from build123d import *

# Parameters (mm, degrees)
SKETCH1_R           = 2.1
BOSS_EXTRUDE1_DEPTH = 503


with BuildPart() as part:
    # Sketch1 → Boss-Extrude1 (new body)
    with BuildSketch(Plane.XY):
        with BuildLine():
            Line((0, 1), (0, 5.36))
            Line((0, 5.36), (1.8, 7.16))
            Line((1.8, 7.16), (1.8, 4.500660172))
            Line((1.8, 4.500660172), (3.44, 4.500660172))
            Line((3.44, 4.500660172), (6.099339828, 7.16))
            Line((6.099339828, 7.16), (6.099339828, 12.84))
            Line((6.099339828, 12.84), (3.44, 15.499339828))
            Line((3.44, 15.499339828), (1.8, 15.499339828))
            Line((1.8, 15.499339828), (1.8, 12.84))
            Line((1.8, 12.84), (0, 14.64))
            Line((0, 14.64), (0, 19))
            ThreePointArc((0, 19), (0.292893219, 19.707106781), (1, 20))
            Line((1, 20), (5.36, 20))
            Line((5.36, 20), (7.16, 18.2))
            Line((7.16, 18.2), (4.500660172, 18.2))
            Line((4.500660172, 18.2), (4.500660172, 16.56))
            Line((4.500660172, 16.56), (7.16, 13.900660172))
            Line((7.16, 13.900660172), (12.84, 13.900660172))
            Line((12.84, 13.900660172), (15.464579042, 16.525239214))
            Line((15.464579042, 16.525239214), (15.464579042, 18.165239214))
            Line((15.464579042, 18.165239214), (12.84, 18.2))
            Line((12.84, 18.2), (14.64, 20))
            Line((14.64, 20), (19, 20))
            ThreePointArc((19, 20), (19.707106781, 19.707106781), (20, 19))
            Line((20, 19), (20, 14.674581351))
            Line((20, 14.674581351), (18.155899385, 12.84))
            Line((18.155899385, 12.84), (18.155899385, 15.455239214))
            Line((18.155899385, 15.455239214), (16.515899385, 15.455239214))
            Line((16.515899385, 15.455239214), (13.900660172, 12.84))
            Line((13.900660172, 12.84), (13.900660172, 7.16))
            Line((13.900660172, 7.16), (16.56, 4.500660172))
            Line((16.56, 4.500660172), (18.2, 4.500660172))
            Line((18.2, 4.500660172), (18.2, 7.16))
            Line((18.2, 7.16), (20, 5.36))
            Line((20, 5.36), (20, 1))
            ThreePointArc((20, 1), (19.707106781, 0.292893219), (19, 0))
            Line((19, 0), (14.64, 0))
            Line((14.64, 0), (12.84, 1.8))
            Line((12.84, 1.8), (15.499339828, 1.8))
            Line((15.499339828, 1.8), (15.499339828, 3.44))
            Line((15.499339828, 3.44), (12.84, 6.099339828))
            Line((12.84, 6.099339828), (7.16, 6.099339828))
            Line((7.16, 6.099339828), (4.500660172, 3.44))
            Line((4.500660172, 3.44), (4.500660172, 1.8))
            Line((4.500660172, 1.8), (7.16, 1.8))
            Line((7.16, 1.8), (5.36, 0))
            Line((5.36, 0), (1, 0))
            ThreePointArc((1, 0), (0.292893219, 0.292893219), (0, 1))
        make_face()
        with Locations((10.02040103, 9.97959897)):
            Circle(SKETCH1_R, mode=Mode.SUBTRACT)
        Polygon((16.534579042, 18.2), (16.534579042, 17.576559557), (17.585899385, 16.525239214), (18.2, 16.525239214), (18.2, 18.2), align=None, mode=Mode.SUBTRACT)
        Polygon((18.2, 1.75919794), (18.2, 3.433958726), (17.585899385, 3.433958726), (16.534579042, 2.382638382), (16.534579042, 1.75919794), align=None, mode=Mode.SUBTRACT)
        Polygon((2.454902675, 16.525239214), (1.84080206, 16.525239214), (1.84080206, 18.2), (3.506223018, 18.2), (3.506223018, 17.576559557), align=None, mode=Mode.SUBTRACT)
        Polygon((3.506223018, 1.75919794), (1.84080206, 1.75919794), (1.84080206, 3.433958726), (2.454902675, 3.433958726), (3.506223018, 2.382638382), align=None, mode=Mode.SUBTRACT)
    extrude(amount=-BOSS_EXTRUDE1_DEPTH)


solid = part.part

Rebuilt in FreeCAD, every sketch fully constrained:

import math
import FreeCAD as App
import Part
import Sketcher
Q = App.Units.Quantity


def add_polygon(sketch, points):
    """Adds a closed chain of lines whose ends are joined by coincident constraints."""
    first, n = sketch.GeometryCount, len(points)
    for a, b in zip(points, points[1:] + points[:1]):
        sketch.addGeometry(Part.LineSegment(App.Vector(*a, 0), App.Vector(*b, 0)), False)
    for i in range(n):
        sketch.addConstraint(Sketcher.Constraint("Coincident", first + i, 2, first + (i + 1) % n, 1))

doc = App.newDocument("Part")
body = doc.addObject("PartDesign::Body", "Body")

sketch1 = doc.addObject("Sketcher::SketchObject", "Sketch")
body.addObject(sketch1)
sketch1.AttachmentSupport = (doc.XY_Plane, [""])
sketch1.MapMode = "FlatFace"
sketch1.addGeometry(Part.LineSegment(App.Vector(0, 5.4, 0), App.Vector(0, 1, 0)), False)
sketch1.addGeometry(Part.ArcOfCircle(Part.Circle(App.Vector(1, 1, 0), App.Vector(0, 0, 1), 1), math.radians(-180), math.radians(-90)), False)
sketch1.addGeometry(Part.LineSegment(App.Vector(1, 0, 0), App.Vector(5.4, 0, 0)), False)
sketch1.addGeometry(Part.LineSegment(App.Vector(5.4, 0, 0), App.Vector(7.2, 1.8, 0)), False)
sketch1.addGeometry(Part.LineSegment(App.Vector(7.2, 1.8, 0), App.Vector(4.5, 1.8, 0)), False)
sketch1.addGeometry(Part.LineSegment(App.Vector(4.5, 1.8, 0), App.Vector(4.5, 3.4, 0)), False)
sketch1.addGeometry(Part.LineSegment(App.Vector(4.5, 3.4, 0), App.Vector(7.2, 6.1, 0)), False)
sketch1.addGeometry(Part.LineSegment(App.Vector(7.2, 6.1, 0), App.Vector(12.8, 6.1, 0)), False)
sketch1.addGeometry(Part.LineSegment(App.Vector(12.8, 6.1, 0), App.Vector(15.5, 3.4, 0)), False)
sketch1.addGeometry(Part.LineSegment(App.Vector(15.5, 3.4, 0), App.Vector(15.5, 1.8, 0)), False)
sketch1.addGeometry(Part.LineSegment(App.Vector(15.5, 1.8, 0), App.Vector(12.8, 1.8, 0)), False)
sketch1.addGeometry(Part.LineSegment(App.Vector(12.8, 1.8, 0), App.Vector(14.6, 0, 0)), False)
sketch1.addGeometry(Part.LineSegment(App.Vector(14.6, 0, 0), App.Vector(19, 0, 0)), False)
sketch1.addGeometry(Part.ArcOfCircle(Part.Circle(App.Vector(19, 1, 0), App.Vector(0, 0, 1), 1), math.radians(-90), math.radians(0)), False)
sketch1.addGeometry(Part.LineSegment(App.Vector(20, 1, 0), App.Vector(20, 5.4, 0)), False)
sketch1.addGeometry(Part.LineSegment(App.Vector(20, 5.4, 0), App.Vector(18.2, 7.2, 0)), False)
sketch1.addGeometry(Part.LineSegment(App.Vector(18.2, 7.2, 0), App.Vector(18.2, 4.5, 0)), False)
sketch1.addGeometry(Part.LineSegment(App.Vector(18.2, 4.5, 0), App.Vector(16.6, 4.5, 0)), False)
sketch1.addGeometry(Part.LineSegment(App.Vector(16.6, 4.5, 0), App.Vector(13.9, 7.2, 0)), False)
sketch1.addGeometry(Part.LineSegment(App.Vector(13.9, 7.2, 0), App.Vector(13.9, 12.8, 0)), False)
sketch1.addGeometry(Part.LineSegment(App.Vector(13.9, 12.8, 0), App.Vector(16.5, 15.5, 0)), False)
sketch1.addGeometry(Part.LineSegment(App.Vector(16.5, 15.5, 0), App.Vector(18.2, 15.5, 0)), False)
sketch1.addGeometry(Part.LineSegment(App.Vector(18.2, 15.5, 0), App.Vector(18.2, 12.8, 0)), False)
sketch1.addGeometry(Part.LineSegment(App.Vector(18.2, 12.8, 0), App.Vector(20, 14.7, 0)), False)
sketch1.addGeometry(Part.LineSegment(App.Vector(20, 14.7, 0), App.Vector(20, 19, 0)), False)
sketch1.addGeometry(Part.ArcOfCircle(Part.Circle(App.Vector(19, 19, 0), App.Vector(0, 0, 1), 1), math.radians(0), math.radians(90)), False)
sketch1.addGeometry(Part.LineSegment(App.Vector(19, 20, 0), App.Vector(14.6, 20, 0)), False)
sketch1.addGeometry(Part.LineSegment(App.Vector(14.6, 20, 0), App.Vector(12.8, 18.2, 0)), False)
sketch1.addGeometry(Part.LineSegment(App.Vector(12.8, 18.2, 0), App.Vector(15.5, 18.2, 0)), False)
sketch1.addGeometry(Part.LineSegment(App.Vector(15.5, 18.2, 0), App.Vector(15.5, 16.5, 0)), False)
sketch1.addGeometry(Part.LineSegment(App.Vector(15.5, 16.5, 0), App.Vector(12.8, 13.9, 0)), False)
sketch1.addGeometry(Part.LineSegment(App.Vector(12.8, 13.9, 0), App.Vector(7.2, 13.9, 0)), False)
sketch1.addGeometry(Part.LineSegment(App.Vector(7.2, 13.9, 0), App.Vector(4.5, 16.6, 0)), False)
sketch1.addGeometry(Part.LineSegment(App.Vector(4.5, 16.6, 0), App.Vector(4.5, 18.2, 0)), False)
sketch1.addGeometry(Part.LineSegment(App.Vector(4.5, 18.2, 0), App.Vector(7.2, 18.2, 0)), False)
sketch1.addGeometry(Part.LineSegment(App.Vector(7.2, 18.2, 0), App.Vector(5.4, 20, 0)), False)
sketch1.addGeometry(Part.LineSegment(App.Vector(5.4, 20, 0), App.Vector(1, 20, 0)), False)
sketch1.addGeometry(Part.ArcOfCircle(Part.Circle(App.Vector(1, 19, 0), App.Vector(0, 0, 1), 1), math.radians(90), math.radians(180)), False)
sketch1.addGeometry(Part.LineSegment(App.Vector(0, 19, 0), App.Vector(0, 14.6, 0)), False)
sketch1.addGeometry(Part.LineSegment(App.Vector(0, 14.6, 0), App.Vector(1.8, 12.8, 0)), False)
sketch1.addGeometry(Part.LineSegment(App.Vector(1.8, 12.8, 0), App.Vector(1.8, 15.5, 0)), False)
sketch1.addGeometry(Part.LineSegment(App.Vector(1.8, 15.5, 0), App.Vector(3.4, 15.5, 0)), False)
sketch1.addGeometry(Part.LineSegment(App.Vector(3.4, 15.5, 0), App.Vector(6.1, 12.8, 0)), False)
sketch1.addGeometry(Part.LineSegment(App.Vector(6.1, 12.8, 0), App.Vector(6.1, 7.2, 0)), False)
sketch1.addGeometry(Part.LineSegment(App.Vector(6.1, 7.2, 0), App.Vector(3.4, 4.5, 0)), False)
sketch1.addGeometry(Part.LineSegment(App.Vector(3.4, 4.5, 0), App.Vector(1.8, 4.5, 0)), False)
sketch1.addGeometry(Part.LineSegment(App.Vector(1.8, 4.5, 0), App.Vector(1.8, 7.2, 0)), False)
sketch1.addGeometry(Part.LineSegment(App.Vector(1.8, 7.2, 0), App.Vector(0, 5.4, 0)), False)
add_polygon(sketch1, [(18.2, 1.8), (16.5, 1.8), (16.5, 2.4), (17.6, 3.4), (18.2, 3.4)])
add_polygon(sketch1, [(3.5, 1.8), (1.8, 1.8), (1.8, 3.4), (2.5, 3.4), (3.5, 2.4)])
sketch1.addGeometry(Part.Circle(App.Vector(10, 10, 0), App.Vector(0, 0, 1), 2.1), False)
add_polygon(sketch1, [(16.5, 18.2), (18.2, 18.2), (18.2, 16.5), (17.6, 16.5), (16.5, 17.6)])
add_polygon(sketch1, [(2.5, 16.5), (1.8, 16.5), (1.8, 18.2), (3.5, 18.2), (3.5, 17.6)])
sketch1.addConstraint(Sketcher.Constraint("Tangent", 0, 2, 1, 1))
sketch1.addConstraint(Sketcher.Constraint("Tangent", 1, 2, 2, 1))
sketch1.addConstraint(Sketcher.Constraint("Coincident", 2, 2, 3, 1))
sketch1.addConstraint(Sketcher.Constraint("Coincident", 3, 2, 4, 1))
sketch1.addConstraint(Sketcher.Constraint("Coincident", 4, 2, 5, 1))
sketch1.addConstraint(Sketcher.Constraint("Coincident", 5, 2, 6, 1))
sketch1.addConstraint(Sketcher.Constraint("Coincident", 6, 2, 7, 1))
sketch1.addConstraint(Sketcher.Constraint("Coincident", 7, 2, 8, 1))
sketch1.addConstraint(Sketcher.Constraint("Coincident", 8, 2, 9, 1))
sketch1.addConstraint(Sketcher.Constraint("Coincident", 9, 2, 10, 1))
sketch1.addConstraint(Sketcher.Constraint("Coincident", 10, 2, 11, 1))
sketch1.addConstraint(Sketcher.Constraint("Coincident", 11, 2, 12, 1))
sketch1.addConstraint(Sketcher.Constraint("Tangent", 12, 2, 13, 1))
sketch1.addConstraint(Sketcher.Constraint("Tangent", 13, 2, 14, 1))
sketch1.addConstraint(Sketcher.Constraint("Coincident", 14, 2, 15, 1))
sketch1.addConstraint(Sketcher.Constraint("Coincident", 15, 2, 16, 1))
sketch1.addConstraint(Sketcher.Constraint("Coincident", 16, 2, 17, 1))
sketch1.addConstraint(Sketcher.Constraint("Coincident", 17, 2, 18, 1))
sketch1.addConstraint(Sketcher.Constraint("Coincident", 18, 2, 19, 1))
sketch1.addConstraint(Sketcher.Constraint("Coincident", 19, 2, 20, 1))
sketch1.addConstraint(Sketcher.Constraint("Coincident", 20, 2, 21, 1))
sketch1.addConstraint(Sketcher.Constraint("Coincident", 21, 2, 22, 1))
sketch1.addConstraint(Sketcher.Constraint("Coincident", 22, 2, 23, 1))
sketch1.addConstraint(Sketcher.Constraint("Coincident", 23, 2, 24, 1))
sketch1.addConstraint(Sketcher.Constraint("Tangent", 24, 2, 25, 1))
sketch1.addConstraint(Sketcher.Constraint("Tangent", 25, 2, 26, 1))
sketch1.addConstraint(Sketcher.Constraint("Coincident", 26, 2, 27, 1))
sketch1.addConstraint(Sketcher.Constraint("Coincident", 27, 2, 28, 1))
sketch1.addConstraint(Sketcher.Constraint("Coincident", 28, 2, 29, 1))
sketch1.addConstraint(Sketcher.Constraint("Coincident", 29, 2, 30, 1))
sketch1.addConstraint(Sketcher.Constraint("Coincident", 30, 2, 31, 1))
sketch1.addConstraint(Sketcher.Constraint("Coincident", 31, 2, 32, 1))
sketch1.addConstraint(Sketcher.Constraint("Coincident", 32, 2, 33, 1))
sketch1.addConstraint(Sketcher.Constraint("Coincident", 33, 2, 34, 1))
sketch1.addConstraint(Sketcher.Constraint("Coincident", 34, 2, 35, 1))
sketch1.addConstraint(Sketcher.Constraint("Coincident", 35, 2, 36, 1))
sketch1.addConstraint(Sketcher.Constraint("Tangent", 36, 2, 37, 1))
sketch1.addConstraint(Sketcher.Constraint("Tangent", 37, 2, 38, 1))
sketch1.addConstraint(Sketcher.Constraint("Coincident", 38, 2, 39, 1))
sketch1.addConstraint(Sketcher.Constraint("Coincident", 39, 2, 40, 1))
sketch1.addConstraint(Sketcher.Constraint("Coincident", 40, 2, 41, 1))
sketch1.addConstraint(Sketcher.Constraint("Coincident", 41, 2, 42, 1))
sketch1.addConstraint(Sketcher.Constraint("Coincident", 42, 2, 43, 1))
sketch1.addConstraint(Sketcher.Constraint("Coincident", 43, 2, 44, 1))
sketch1.addConstraint(Sketcher.Constraint("Coincident", 44, 2, 45, 1))
sketch1.addConstraint(Sketcher.Constraint("Coincident", 45, 2, 46, 1))
sketch1.addConstraint(Sketcher.Constraint("Coincident", 46, 2, 47, 1))
sketch1.addConstraint(Sketcher.Constraint("Coincident", 47, 2, 0, 1))
sketch1.addConstraint(Sketcher.Constraint("Vertical", 0))
sketch1.addConstraint(Sketcher.Constraint("Horizontal", 2))
sketch1.addConstraint(Sketcher.Constraint("Horizontal", 4))
sketch1.addConstraint(Sketcher.Constraint("Vertical", 5))
sketch1.addConstraint(Sketcher.Constraint("Horizontal", 7))
sketch1.addConstraint(Sketcher.Constraint("Vertical", 9))
sketch1.addConstraint(Sketcher.Constraint("Horizontal", 10))
sketch1.addConstraint(Sketcher.Constraint("Horizontal", 12))
sketch1.addConstraint(Sketcher.Constraint("Vertical", 14))
sketch1.addConstraint(Sketcher.Constraint("Vertical", 16))
sketch1.addConstraint(Sketcher.Constraint("Horizontal", 17))
sketch1.addConstraint(Sketcher.Constraint("Vertical", 19))
sketch1.addConstraint(Sketcher.Constraint("Horizontal", 21))
sketch1.addConstraint(Sketcher.Constraint("Vertical", 22))
sketch1.addConstraint(Sketcher.Constraint("Vertical", 24))
sketch1.addConstraint(Sketcher.Constraint("Horizontal", 26))
sketch1.addConstraint(Sketcher.Constraint("Vertical", 29))
sketch1.addConstraint(Sketcher.Constraint("Horizontal", 31))
sketch1.addConstraint(Sketcher.Constraint("Vertical", 33))
sketch1.addConstraint(Sketcher.Constraint("Horizontal", 34))
sketch1.addConstraint(Sketcher.Constraint("Horizontal", 36))
sketch1.addConstraint(Sketcher.Constraint("Vertical", 38))
sketch1.addConstraint(Sketcher.Constraint("Vertical", 40))
sketch1.addConstraint(Sketcher.Constraint("Horizontal", 41))
sketch1.addConstraint(Sketcher.Constraint("Vertical", 43))
sketch1.addConstraint(Sketcher.Constraint("Horizontal", 45))
sketch1.addConstraint(Sketcher.Constraint("Vertical", 46))
sketch1.addConstraint(Sketcher.Constraint("Horizontal", 48))
sketch1.addConstraint(Sketcher.Constraint("Vertical", 49))
sketch1.addConstraint(Sketcher.Constraint("Horizontal", 51))
sketch1.addConstraint(Sketcher.Constraint("Vertical", 52))
sketch1.addConstraint(Sketcher.Constraint("Horizontal", 53))
sketch1.addConstraint(Sketcher.Constraint("Vertical", 54))
sketch1.addConstraint(Sketcher.Constraint("Horizontal", 55))
sketch1.addConstraint(Sketcher.Constraint("Vertical", 57))
sketch1.addConstraint(Sketcher.Constraint("Horizontal", 59))
sketch1.addConstraint(Sketcher.Constraint("Vertical", 60))
sketch1.addConstraint(Sketcher.Constraint("Horizontal", 61))
sketch1.addConstraint(Sketcher.Constraint("Vertical", 63))
sketch1.addConstraint(Sketcher.Constraint("Horizontal", 64))
sketch1.addConstraint(Sketcher.Constraint("Vertical", 65))
sketch1.addConstraint(Sketcher.Constraint("Horizontal", 66))
sketch1.addConstraint(Sketcher.Constraint("Vertical", 67))
sketch1.addConstraint(Sketcher.Constraint("Equal", 1, 13))
sketch1.addConstraint(Sketcher.Constraint("Equal", 13, 25))
sketch1.addConstraint(Sketcher.Constraint("Equal", 25, 37))
sketch1.addConstraint(Sketcher.Constraint("PointOnObject", 0, 2, -2))
sketch1.addConstraint(Sketcher.Constraint("PointOnObject", 1, 2, -1))
sketch1.addConstraint(Sketcher.Constraint("PointOnObject", 11, 2, -1))
sketch1.addConstraint(Sketcher.Constraint("PointOnObject", 37, 2, -2))
sketch1.addConstraint(Sketcher.Constraint("Parallel", 3, 6))
sketch1.addConstraint(Sketcher.Constraint("Perpendicular", 6, 8))
sketch1.addConstraint(Sketcher.Constraint("Parallel", 8, 11))
sketch1.addConstraint(Sketcher.Constraint("Parallel", 11, 15))
sketch1.addConstraint(Sketcher.Constraint("Parallel", 15, 18))
sketch1.addConstraint(Sketcher.Constraint("Perpendicular", 18, 20))
sketch1.addConstraint(Sketcher.Constraint("Parallel", 20, 27))
sketch1.addConstraint(Sketcher.Constraint("Parallel", 27, 30))
sketch1.addConstraint(Sketcher.Constraint("Perpendicular", 30, 32))
sketch1.addConstraint(Sketcher.Constraint("Parallel", 32, 35))
sketch1.addConstraint(Sketcher.Constraint("Parallel", 35, 39))
sketch1.addConstraint(Sketcher.Constraint("Parallel", 39, 42))
sketch1.addConstraint(Sketcher.Constraint("Perpendicular", 42, 44))
sketch1.addConstraint(Sketcher.Constraint("Parallel", 44, 47))
sketch1.addConstraint(Sketcher.Constraint("Parallel", 47, 50))
sketch1.addConstraint(Sketcher.Constraint("Perpendicular", 50, 56))
sketch1.addConstraint(Sketcher.Constraint("Parallel", 56, 62))
sketch1.addConstraint(Sketcher.Constraint("Perpendicular", 62, 68))
sketch1.addConstraint(Sketcher.Constraint("Horizontal", 25, 3, 37, 3))
sketch1.addConstraint(Sketcher.Constraint("Horizontal", 5, 2, 8, 2))
sketch1.addConstraint(Sketcher.Constraint("Horizontal", 4, 2, 9, 2))
sketch1.addConstraint(Sketcher.Constraint("Horizontal", 15, 2, 18, 2))
sketch1.addConstraint(Sketcher.Constraint("Horizontal", 19, 2, 22, 2))
sketch1.addConstraint(Sketcher.Constraint("Horizontal", 27, 2, 33, 2))
sketch1.addConstraint(Sketcher.Constraint("Horizontal", 22, 2, 39, 2))
sketch1.addConstraint(Sketcher.Constraint("Horizontal", 39, 2, 42, 2))
sketch1.addConstraint(Sketcher.Constraint("Horizontal", 18, 2, 43, 2))
sketch1.addConstraint(Sketcher.Constraint("Horizontal", 17, 2, 44, 2))
sketch1.addConstraint(Sketcher.Constraint("Horizontal", 43, 2, 46, 2))
sketch1.addConstraint(Sketcher.Constraint("Horizontal", 14, 2, 47, 2))
sketch1.addConstraint(Sketcher.Constraint("Horizontal", 52, 2, 53, 2))
sketch1.addConstraint(Sketcher.Constraint("Horizontal", 51, 2, 54, 2))
sketch1.addConstraint(Sketcher.Constraint("Horizontal", 49, 2, 56, 2))
sketch1.addConstraint(Sketcher.Constraint("Horizontal", 34, 2, 59, 2))
sketch1.addConstraint(Sketcher.Constraint("Horizontal", 29, 2, 60, 2))
sketch1.addConstraint(Sketcher.Constraint("Horizontal", 61, 2, 64, 2))
sketch1.addConstraint(Sketcher.Constraint("Horizontal", 63, 2, 65, 2))
sketch1.addConstraint(Sketcher.Constraint("Horizontal", 62, 2, 67, 2))
sketch1.addConstraint(Sketcher.Constraint("Vertical", 13, 3, 25, 3))
sketch1.addConstraint(Sketcher.Constraint("Vertical", 3, 2, 6, 2))
sketch1.addConstraint(Sketcher.Constraint("Vertical", 7, 2, 10, 2))
sketch1.addConstraint(Sketcher.Constraint("Vertical", 11, 2, 26, 2))
sketch1.addConstraint(Sketcher.Constraint("Vertical", 10, 2, 27, 2))
sketch1.addConstraint(Sketcher.Constraint("Vertical", 27, 2, 30, 2))
sketch1.addConstraint(Sketcher.Constraint("Vertical", 6, 2, 31, 2))
sketch1.addConstraint(Sketcher.Constraint("Vertical", 5, 2, 32, 2))
sketch1.addConstraint(Sketcher.Constraint("Vertical", 31, 2, 34, 2))
sketch1.addConstraint(Sketcher.Constraint("Vertical", 2, 2, 35, 2))
sketch1.addConstraint(Sketcher.Constraint("Vertical", 41, 2, 44, 2))
sketch1.addConstraint(Sketcher.Constraint("Vertical", 40, 2, 45, 2))
sketch1.addConstraint(Sketcher.Constraint("Vertical", 16, 2, 51, 2))
sketch1.addConstraint(Sketcher.Constraint("Vertical", 52, 2, 59, 2))
sketch1.addConstraint(Sketcher.Constraint("Vertical", 50, 2, 61, 2))
sketch1.addConstraint(Sketcher.Constraint("Vertical", 49, 2, 62, 2))
sketch1.addConstraint(Sketcher.Constraint("Vertical", 54, 2, 64, 2))
sketch1.addConstraint(Sketcher.Constraint("Vertical", 57, 2, 66, 2))
sketch1.addConstraint(Sketcher.Constraint("Equal", 2, 12))
sketch1.addConstraint(Sketcher.Constraint("Equal", 17, 21))
sketch1.addConstraint(Sketcher.Constraint("Equal", 21, 41))
sketch1.addConstraint(Sketcher.Constraint("Equal", 48, 53))
sketch1.addConstraint(Sketcher.Constraint("Equal", 36, 0))
sketch1.addConstraint(Sketcher.Constraint("Equal", 45, 5))
sketch1.addConstraint(Sketcher.Constraint("Equal", 34, 16))
sketch1.addConstraint(Sketcher.Constraint("Equal", 31, 19))
sketch1.addConstraint(Sketcher.Constraint("Equal", 9, 29))
sketch1.addConstraint(Sketcher.Constraint("Equal", 29, 33))
sketch1.addConstraint(Sketcher.Constraint("Equal", 14, 38))
sketch1.addConstraint(Sketcher.Constraint("Equal", 54, 60))
sketch1.addConstraint(Sketcher.Constraint("Equal", 11, 15))
sketch1.addConstraint(Sketcher.Constraint("Radius", 1, Q("1 mm")))
sketch1.addConstraint(Sketcher.Constraint("Diameter", 58, Q("4.2 mm")))
sketch1.addConstraint(Sketcher.Constraint("DistanceX", -1, 1, 13, 3, Q("19 mm")))
sketch1.addConstraint(Sketcher.Constraint("DistanceX", 2, 1, 2, 2, Q("4.36 mm")))
sketch1.addConstraint(Sketcher.Constraint("DistanceX", 7, 1, 7, 2, Q("5.68 mm")))
sketch1.addConstraint(Sketcher.Constraint("DistanceX", 17, 2, 17, 1, Q("1.64 mm")))
sketch1.addConstraint(Sketcher.Constraint("DistanceX", 51, 1, 51, 2, Q("0.614101 mm")))
sketch1.addConstraint(Sketcher.Constraint("DistanceX", 4, 2, 4, 1, Q("2.65934 mm")))
sketch1.addConstraint(Sketcher.Constraint("DistanceX", 48, 2, 48, 1, Q("1.665421 mm")))
sketch1.addConstraint(Sketcher.Constraint("DistanceY", 22, 2, 22, 1, Q("2.615239 mm")))
sketch1.addConstraint(Sketcher.Constraint("DistanceY", 24, 1, 24, 2, Q("4.325419 mm")))
sketch1.addConstraint(Sketcher.Constraint("DistanceY", 49, 1, 49, 2, Q("0.62344 mm")))
sketch1.addConstraint(Sketcher.Constraint("DistanceX", -1, 1, 58, 3, Q("10.020401 mm")))
sketch1.addConstraint(Sketcher.Constraint("DistanceY", -1, 1, 58, 3, Q("9.979599 mm")))
sketch1.addConstraint(Sketcher.Constraint("DistanceY", -1, 1, 49, 2, Q("2.382638 mm")))
sketch1.addConstraint(Sketcher.Constraint("DistanceX", -1, 1, 53, 2, Q("1.840802 mm")))
pad1 = doc.addObject("PartDesign::Pad", "Pad")
body.addObject(pad1)
pad1.Profile = sketch1
pad1.Length = 503
pad1.Reversed = True

doc.recompute()
